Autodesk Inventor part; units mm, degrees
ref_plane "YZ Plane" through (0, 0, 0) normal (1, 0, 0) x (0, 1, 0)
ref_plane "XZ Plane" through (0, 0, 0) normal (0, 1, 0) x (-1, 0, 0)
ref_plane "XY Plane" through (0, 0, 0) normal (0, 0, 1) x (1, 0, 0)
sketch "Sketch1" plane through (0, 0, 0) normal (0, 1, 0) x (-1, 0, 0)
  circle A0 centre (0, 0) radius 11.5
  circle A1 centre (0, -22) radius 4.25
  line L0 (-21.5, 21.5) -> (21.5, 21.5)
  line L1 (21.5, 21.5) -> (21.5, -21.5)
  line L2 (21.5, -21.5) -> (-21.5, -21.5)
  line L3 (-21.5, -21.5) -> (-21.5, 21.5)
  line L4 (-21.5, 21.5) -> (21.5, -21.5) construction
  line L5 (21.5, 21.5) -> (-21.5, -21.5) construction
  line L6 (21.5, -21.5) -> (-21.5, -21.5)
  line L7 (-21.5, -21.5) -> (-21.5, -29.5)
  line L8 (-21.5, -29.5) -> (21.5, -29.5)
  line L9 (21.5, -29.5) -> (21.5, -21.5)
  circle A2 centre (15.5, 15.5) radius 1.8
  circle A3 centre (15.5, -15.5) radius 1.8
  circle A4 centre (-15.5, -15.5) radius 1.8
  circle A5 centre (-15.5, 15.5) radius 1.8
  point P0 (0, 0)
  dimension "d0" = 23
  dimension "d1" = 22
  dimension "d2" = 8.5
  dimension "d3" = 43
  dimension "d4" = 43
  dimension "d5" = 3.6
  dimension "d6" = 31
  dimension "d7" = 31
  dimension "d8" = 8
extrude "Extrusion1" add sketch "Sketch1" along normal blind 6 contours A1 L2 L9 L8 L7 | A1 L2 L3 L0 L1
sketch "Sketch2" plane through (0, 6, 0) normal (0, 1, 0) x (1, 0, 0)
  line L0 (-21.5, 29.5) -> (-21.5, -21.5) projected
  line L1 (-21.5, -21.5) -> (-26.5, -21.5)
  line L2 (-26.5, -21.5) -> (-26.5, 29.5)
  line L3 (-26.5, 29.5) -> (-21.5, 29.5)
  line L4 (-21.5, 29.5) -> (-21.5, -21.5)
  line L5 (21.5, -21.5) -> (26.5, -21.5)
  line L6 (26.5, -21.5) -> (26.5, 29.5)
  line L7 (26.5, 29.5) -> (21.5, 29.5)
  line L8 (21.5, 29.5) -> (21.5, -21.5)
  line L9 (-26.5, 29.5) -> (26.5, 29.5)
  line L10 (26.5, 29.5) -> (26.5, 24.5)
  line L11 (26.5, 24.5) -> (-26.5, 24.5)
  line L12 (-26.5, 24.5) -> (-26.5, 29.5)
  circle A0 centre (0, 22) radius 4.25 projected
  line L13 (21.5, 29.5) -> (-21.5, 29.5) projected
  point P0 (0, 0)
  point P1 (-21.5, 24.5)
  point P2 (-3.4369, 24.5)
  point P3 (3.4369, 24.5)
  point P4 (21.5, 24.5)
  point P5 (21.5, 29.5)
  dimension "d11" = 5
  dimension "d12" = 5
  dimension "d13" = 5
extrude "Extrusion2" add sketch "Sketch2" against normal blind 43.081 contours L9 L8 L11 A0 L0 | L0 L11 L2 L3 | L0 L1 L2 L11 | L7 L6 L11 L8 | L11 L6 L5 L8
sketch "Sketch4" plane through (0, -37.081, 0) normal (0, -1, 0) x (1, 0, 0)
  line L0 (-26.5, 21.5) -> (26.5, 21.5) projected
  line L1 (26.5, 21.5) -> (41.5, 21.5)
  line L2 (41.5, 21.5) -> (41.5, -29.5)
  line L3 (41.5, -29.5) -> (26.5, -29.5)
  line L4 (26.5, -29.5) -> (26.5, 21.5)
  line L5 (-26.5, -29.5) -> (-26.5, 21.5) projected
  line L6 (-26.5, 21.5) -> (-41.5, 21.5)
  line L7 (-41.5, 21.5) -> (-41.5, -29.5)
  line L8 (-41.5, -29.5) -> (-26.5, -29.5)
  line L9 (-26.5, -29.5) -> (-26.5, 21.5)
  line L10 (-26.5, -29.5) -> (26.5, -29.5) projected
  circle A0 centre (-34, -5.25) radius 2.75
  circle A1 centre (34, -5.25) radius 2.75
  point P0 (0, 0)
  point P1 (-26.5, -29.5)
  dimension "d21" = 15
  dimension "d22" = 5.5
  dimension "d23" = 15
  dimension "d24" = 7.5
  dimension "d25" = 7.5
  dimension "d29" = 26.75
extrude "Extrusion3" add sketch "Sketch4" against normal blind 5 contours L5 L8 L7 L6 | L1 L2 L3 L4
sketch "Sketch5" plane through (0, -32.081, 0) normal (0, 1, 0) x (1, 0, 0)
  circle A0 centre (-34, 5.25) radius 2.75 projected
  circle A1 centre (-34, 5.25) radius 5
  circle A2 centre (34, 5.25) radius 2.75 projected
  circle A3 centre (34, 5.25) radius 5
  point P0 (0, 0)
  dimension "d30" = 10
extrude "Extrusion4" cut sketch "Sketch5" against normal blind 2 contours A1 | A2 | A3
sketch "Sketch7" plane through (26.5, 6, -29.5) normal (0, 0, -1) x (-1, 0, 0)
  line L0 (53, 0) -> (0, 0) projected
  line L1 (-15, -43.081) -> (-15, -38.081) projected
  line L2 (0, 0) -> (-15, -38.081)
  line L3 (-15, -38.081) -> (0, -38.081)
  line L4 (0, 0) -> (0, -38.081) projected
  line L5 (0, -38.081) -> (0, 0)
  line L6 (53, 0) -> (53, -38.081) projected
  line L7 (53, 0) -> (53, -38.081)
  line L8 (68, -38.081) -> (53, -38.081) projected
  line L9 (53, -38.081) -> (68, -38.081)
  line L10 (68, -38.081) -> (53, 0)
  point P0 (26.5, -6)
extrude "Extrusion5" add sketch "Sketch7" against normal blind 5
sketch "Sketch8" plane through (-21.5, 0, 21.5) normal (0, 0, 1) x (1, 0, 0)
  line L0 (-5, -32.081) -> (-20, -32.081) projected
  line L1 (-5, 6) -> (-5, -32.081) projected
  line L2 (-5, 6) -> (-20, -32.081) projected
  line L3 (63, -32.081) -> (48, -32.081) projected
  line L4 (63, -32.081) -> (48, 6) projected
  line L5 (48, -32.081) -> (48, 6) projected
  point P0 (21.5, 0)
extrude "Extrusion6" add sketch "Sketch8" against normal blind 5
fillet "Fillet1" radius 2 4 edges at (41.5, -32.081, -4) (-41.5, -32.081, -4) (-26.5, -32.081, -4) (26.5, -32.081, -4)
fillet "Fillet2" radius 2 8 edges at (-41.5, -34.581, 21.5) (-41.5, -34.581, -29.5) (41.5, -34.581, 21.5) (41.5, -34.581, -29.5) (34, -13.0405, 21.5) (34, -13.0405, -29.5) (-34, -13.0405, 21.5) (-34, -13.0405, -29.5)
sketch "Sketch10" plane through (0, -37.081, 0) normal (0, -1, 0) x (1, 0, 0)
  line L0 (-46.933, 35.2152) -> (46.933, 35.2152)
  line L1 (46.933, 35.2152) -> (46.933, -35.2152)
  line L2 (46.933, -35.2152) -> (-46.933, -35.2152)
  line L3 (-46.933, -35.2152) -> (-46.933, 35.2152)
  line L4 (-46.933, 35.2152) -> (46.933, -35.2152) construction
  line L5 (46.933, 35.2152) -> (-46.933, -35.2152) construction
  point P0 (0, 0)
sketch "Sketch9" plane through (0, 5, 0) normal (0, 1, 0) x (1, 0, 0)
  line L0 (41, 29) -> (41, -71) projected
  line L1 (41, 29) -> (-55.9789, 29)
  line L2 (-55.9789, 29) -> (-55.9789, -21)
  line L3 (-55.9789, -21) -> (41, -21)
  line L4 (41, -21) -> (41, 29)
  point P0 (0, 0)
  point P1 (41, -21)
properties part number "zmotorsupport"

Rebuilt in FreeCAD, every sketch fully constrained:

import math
import FreeCAD as App
import Part
import Sketcher

V = App.Vector
Q = App.Units.Quantity


def edges_at(feature, points):
    """Names of the edges that pass closest to the given points."""
    edges = feature.Shape.Edges
    near = lambda p: min(range(len(edges)), key=lambda i: edges[i].distToShape(Part.Vertex(*p))[0])
    return sorted({f"Edge{near(p) + 1}" for p in points})


def add_polygon(sketch, points):
    """Adds a closed chain of lines whose ends are joined by coincident constraints."""
    first, n = sketch.GeometryCount, len(points)
    for a, b in zip(points, points[1:] + points[:1]):
        sketch.addGeometry(Part.LineSegment(App.Vector(*a, 0), App.Vector(*b, 0)), False)
    for i in range(n):
        sketch.addConstraint(Sketcher.Constraint("Coincident", first + i, 2, first + (i + 1) % n, 1))

doc = App.newDocument("Part")
params = doc.addObject("Spreadsheet::Sheet", "Params")
for row, (alias, value) in enumerate([
    ("sketch1_diameter", "23 mm"),
    ("sketch1_diameter2", "8.5 mm"),
    ("sketch1_diameter3", "3.6 mm"),
    ("sketch1_width", "43 mm"),
    ("sketch1_height", "51 mm"),
    ("pad1_length", "6 mm"),
    ("sketch2_width", "5 mm"),
    ("sketch2_width2", "53 mm"),
    ("sketch2_height", "51 mm"),
    ("sketch2_radius", "4.25 mm"),
    ("pad2_length", "43.081 mm"),
    ("sketch3_diameter", "5.5 mm"),
    ("sketch3_width", "15 mm"),
    ("sketch3_height", "51 mm"),
    ("pad3_length", "5 mm"),
    ("sketch4_diameter", "10 mm"),
    ("sketch4_diameter2", "5.5 mm"),
    ("pocket1_length", "2 mm"),
    ("sketch5_width", "15 mm"),
    ("pad4_length", "5 mm"),
    ("sketch6_width", "15 mm"),
    ("pad5_length", "5 mm"),
    ("fillet_radius", "2 mm"),
    ("fillet2_radius", "2 mm"),
], start=1):
    params.set(f"A{row}", alias)
    params.set(f"B{row}", "=" + value)
    params.setAlias(f"B{row}", alias)

body = doc.addObject("PartDesign::Body", "Body")

# Sketch on XZ plane
sketch1 = body.newObject("Sketcher::SketchObject", "Sketch")
sketch1.AttachmentSupport = (doc.getObject("XZ_Plane"), [""])
sketch1.MapMode = "FlatFace"
add_polygon(sketch1, [(-21.5, -29.5), (-21.5, 21.5), (21.5, 21.5), (21.5, -29.5)])  # lines 0-3
sketch1.addGeometry(Part.Circle(V(0, -22, 0), V(0, 0, 1), 4.2), False)  # 4
sketch1.addGeometry(Part.Circle(V(0, 0, 0), V(0, 0, 1), 11.5), False)  # 5
sketch1.addGeometry(Part.Circle(V(-15.5, 15.5, 0), V(0, 0, 1), 1.8), False)  # 6
sketch1.addGeometry(Part.Circle(V(15.5, -15.5, 0), V(0, 0, 1), 1.8), False)  # 7
sketch1.addGeometry(Part.Circle(V(-15.5, -15.5, 0), V(0, 0, 1), 1.8), False)  # 8
sketch1.addGeometry(Part.Circle(V(15.5, 15.5, 0), V(0, 0, 1), 1.8), False)  # 9
sketch1.addConstraint(Sketcher.Constraint("Vertical", 0))
sketch1.addConstraint(Sketcher.Constraint("Horizontal", 1))
sketch1.addConstraint(Sketcher.Constraint("Vertical", 2))
sketch1.addConstraint(Sketcher.Constraint("Horizontal", 3))
sketch1.addConstraint(Sketcher.Constraint("Coincident", 5, 3, -1, 1))
sketch1.addConstraint(Sketcher.Constraint("Equal", 6, 7))
sketch1.addConstraint(Sketcher.Constraint("Equal", 7, 8))
sketch1.addConstraint(Sketcher.Constraint("Equal", 8, 9))
sketch1.addConstraint(Sketcher.Constraint("Symmetric", 6, 3, 7, 3, -1, 1))
sketch1.addConstraint(Sketcher.Constraint("Symmetric", 8, 3, 9, 3, -1, 1))
sketch1.addConstraint(Sketcher.Constraint("Symmetric", 7, 3, 8, 3, -2))
sketch1.addConstraint(Sketcher.Constraint("PointOnObject", 4, 3, -2))
sketch1.addConstraint(Sketcher.Constraint("Diameter", 5, 23.0))
sketch1.addConstraint(Sketcher.Constraint("Diameter", 4, 8.5))
sketch1.addConstraint(Sketcher.Constraint("Diameter", 6, 3.6))
sketch1.addConstraint(Sketcher.Constraint("DistanceX", 1, 1, 1, 2, 43.0))
sketch1.addConstraint(Sketcher.Constraint("DistanceY", 4, 3, -1, 1, 22.0))
sketch1.addConstraint(Sketcher.Constraint("DistanceX", 6, 3, 7, 3, 31.0))
sketch1.addConstraint(Sketcher.Constraint("DistanceY", 7, 3, 6, 3, 31.0))
sketch1.addConstraint(Sketcher.Constraint("DistanceY", 0, 1, 0, 2, 51.0))
sketch1.addConstraint(Sketcher.Constraint("DistanceX", 0, 2, 6, 3, 6.0))
sketch1.addConstraint(Sketcher.Constraint("DistanceY", 6, 3, 0, 2, 6.0))
sketch1.setExpression("Constraints[16]", "Params.sketch1_diameter")
sketch1.setExpression("Constraints[17]", "Params.sketch1_diameter2")
sketch1.setExpression("Constraints[18]", "Params.sketch1_diameter3")
sketch1.setExpression("Constraints[19]", "Params.sketch1_width")
sketch1.setExpression("Constraints[23]", "Params.sketch1_height")
pad1 = body.newObject("PartDesign::Pad", "Pad")
pad1.Profile = sketch1
pad1.setExpression("Length", "Params.pad1_length")
pad1.Reversed = True

# Sketch on XZ plane
sketch2 = body.newObject("Sketcher::SketchObject", "Sketch001")
sketch2.AttachmentSupport = (doc.getObject("XZ_Plane"), [""])
sketch2.MapMode = "FlatFace"
sketch2.AttachmentOffset = App.Placement(V(0, 0, -6), App.Rotation())
sketch2.addGeometry(Part.LineSegment(V(-26.5, -29.5, 0), V(-26.5, 21.5, 0)), False)
sketch2.addGeometry(Part.LineSegment(V(-26.5, 21.5, 0), V(-21.5, 21.5, 0)), False)
sketch2.addGeometry(Part.LineSegment(V(-21.5, 21.5, 0), V(-21.5, -24.5, 0)), False)
sketch2.addGeometry(Part.LineSegment(V(-21.5, -24.5, 0), V(-3.4, -24.5, 0)), False)
sketch2.addGeometry(Part.ArcOfCircle(Part.Circle(V(0, -22, 0), V(0, 0, 1), 4.2), math.radians(-144), math.radians(-36)), False)
sketch2.addGeometry(Part.LineSegment(V(3.4, -24.5, 0), V(21.5, -24.5, 0)), False)
sketch2.addGeometry(Part.LineSegment(V(21.5, -24.5, 0), V(21.5, 21.5, 0)), False)
sketch2.addGeometry(Part.LineSegment(V(21.5, 21.5, 0), V(26.5, 21.5, 0)), False)
sketch2.addGeometry(Part.LineSegment(V(26.5, 21.5, 0), V(26.5, -29.5, 0)), False)
sketch2.addGeometry(Part.LineSegment(V(26.5, -29.5, 0), V(-26.5, -29.5, 0)), False)
sketch2.addConstraint(Sketcher.Constraint("Coincident", 0, 2, 1, 1))
sketch2.addConstraint(Sketcher.Constraint("Coincident", 1, 2, 2, 1))
sketch2.addConstraint(Sketcher.Constraint("Coincident", 2, 2, 3, 1))
sketch2.addConstraint(Sketcher.Constraint("Coincident", 3, 2, 4, 1))
sketch2.addConstraint(Sketcher.Constraint("Coincident", 4, 2, 5, 1))
sketch2.addConstraint(Sketcher.Constraint("Coincident", 5, 2, 6, 1))
sketch2.addConstraint(Sketcher.Constraint("Coincident", 6, 2, 7, 1))
sketch2.addConstraint(Sketcher.Constraint("Coincident", 7, 2, 8, 1))
sketch2.addConstraint(Sketcher.Constraint("Coincident", 8, 2, 9, 1))
sketch2.addConstraint(Sketcher.Constraint("Coincident", 9, 2, 0, 1))
sketch2.addConstraint(Sketcher.Constraint("Vertical", 0))
sketch2.addConstraint(Sketcher.Constraint("Horizontal", 1))
sketch2.addConstraint(Sketcher.Constraint("Vertical", 2))
sketch2.addConstraint(Sketcher.Constraint("Horizontal", 3))
sketch2.addConstraint(Sketcher.Constraint("Horizontal", 5))
sketch2.addConstraint(Sketcher.Constraint("Vertical", 6))
sketch2.addConstraint(Sketcher.Constraint("Horizontal", 7))
sketch2.addConstraint(Sketcher.Constraint("Vertical", 8))
sketch2.addConstraint(Sketcher.Constraint("Horizontal", 9))
sketch2.addConstraint(Sketcher.Constraint("Symmetric", 3, 2, 4, 2, -2))
sketch2.addConstraint(Sketcher.Constraint("Symmetric", 1, 2, 6, 2, -2))
sketch2.addConstraint(Sketcher.Constraint("Equal", 1, 7))
sketch2.addConstraint(Sketcher.Constraint("DistanceX", 1, 1, 1, 2, 5.0))
sketch2.addConstraint(Sketcher.Constraint("DistanceY", 8, 2, 5, 2, 5.0))
sketch2.addConstraint(Sketcher.Constraint("DistanceX", 9, 2, 9, 1, 53.0))
sketch2.addConstraint(Sketcher.Constraint("DistanceY", 0, 1, 0, 2, 51.0))
sketch2.addConstraint(Sketcher.Constraint("Radius", 4, 4.25))
sketch2.addConstraint(Sketcher.Constraint("DistanceY", 4, 3, -1, 1, 22.0))
sketch2.addConstraint(Sketcher.Constraint("DistanceY", -1, 1, 0, 2, 21.5))
sketch2.setExpression("Constraints[22]", "Params.sketch2_width")
sketch2.setExpression("Constraints[24]", "Params.sketch2_width2")
sketch2.setExpression("Constraints[25]", "Params.sketch2_height")
sketch2.setExpression("Constraints[26]", "Params.sketch2_radius")
pad2 = body.newObject("PartDesign::Pad", "Pad001")
pad2.Profile = sketch2
pad2.setExpression("Length", "Params.pad2_length")

# Sketch on XZ plane
sketch3 = body.newObject("Sketcher::SketchObject", "Sketch002")
sketch3.AttachmentSupport = (doc.getObject("XZ_Plane"), [""])
sketch3.MapMode = "FlatFace"
sketch3.AttachmentOffset = App.Placement(V(0, 0, 37.081), App.Rotation())
add_polygon(sketch3, [(-26.5, -29.5), (-26.5, 21.5), (-41.5, 21.5), (-41.5, -29.5)])  # lines 0-3
sketch3.addGeometry(Part.Circle(V(-34, -5.2, 0), V(0, 0, 1), 2.8), False)  # 4
add_polygon(sketch3, [(41.5, 21.5), (26.5, 21.5), (26.5, -29.5), (41.5, -29.5)])  # lines 5-8
sketch3.addGeometry(Part.Circle(V(34, -5.2, 0), V(0, 0, 1), 2.8), False)  # 9
sketch3.addConstraint(Sketcher.Constraint("Vertical", 0))
sketch3.addConstraint(Sketcher.Constraint("Horizontal", 1))
sketch3.addConstraint(Sketcher.Constraint("Vertical", 2))
sketch3.addConstraint(Sketcher.Constraint("Horizontal", 3))
sketch3.addConstraint(Sketcher.Constraint("Horizontal", 5))
sketch3.addConstraint(Sketcher.Constraint("Vertical", 6))
sketch3.addConstraint(Sketcher.Constraint("Horizontal", 7))
sketch3.addConstraint(Sketcher.Constraint("Vertical", 8))
sketch3.addConstraint(Sketcher.Constraint("Equal", 4, 9))
sketch3.addConstraint(Sketcher.Constraint("Symmetric", 4, 3, 9, 3, -2))
sketch3.addConstraint(Sketcher.Constraint("Symmetric", 0, 2, 5, 2, -2))
sketch3.addConstraint(Sketcher.Constraint("Symmetric", 2, 2, 7, 2, -2))
sketch3.addConstraint(Sketcher.Constraint("Diameter", 4, 5.5))
sketch3.addConstraint(Sketcher.Constraint("DistanceX", 1, 2, 1, 1, 15.0))
sketch3.addConstraint(Sketcher.Constraint("DistanceX", 4, 3, 0, 2, 7.5))
sketch3.addConstraint(Sketcher.Constraint("DistanceY", 0, 1, 0, 2, 51.0))
sketch3.addConstraint(Sketcher.Constraint("DistanceY", 4, 3, 0, 2, 26.75))
sketch3.addConstraint(Sketcher.Constraint("DistanceX", 4, 3, -1, 1, 34.0))
sketch3.addConstraint(Sketcher.Constraint("DistanceY", -1, 1, 0, 2, 21.5))
sketch3.setExpression("Constraints[20]", "Params.sketch3_diameter")
sketch3.setExpression("Constraints[21]", "Params.sketch3_width")
sketch3.setExpression("Constraints[23]", "Params.sketch3_height")
pad3 = body.newObject("PartDesign::Pad", "Pad002")
pad3.Profile = sketch3
pad3.setExpression("Length", "Params.pad3_length")
pad3.Reversed = True

# Sketch on XZ plane
sketch4 = body.newObject("Sketcher::SketchObject", "Sketch003")
sketch4.AttachmentSupport = (doc.getObject("XZ_Plane"), [""])
sketch4.MapMode = "FlatFace"
sketch4.AttachmentOffset = App.Placement(V(0, 0, 32.081), App.Rotation())
sketch4.addGeometry(Part.Circle(V(-34, -5.2, 0), V(0, 0, 1), 5), False)
sketch4.addGeometry(Part.Circle(V(-34, -5.2, 0), V(0, 0, 1), 2.8), False)
sketch4.addGeometry(Part.Circle(V(34, -5.2, 0), V(0, 0, 1), 5), False)
sketch4.addConstraint(Sketcher.Constraint("Coincident", 1, 3, 0, 3))
sketch4.addConstraint(Sketcher.Constraint("Equal", 0, 2))
sketch4.addConstraint(Sketcher.Constraint("Symmetric", 0, 3, 2, 3, -2))
sketch4.addConstraint(Sketcher.Constraint("Diameter", 0, 10.0))
sketch4.addConstraint(Sketcher.Constraint("Diameter", 1, 5.5))
sketch4.addConstraint(Sketcher.Constraint("DistanceX", 0, 3, -1, 1, 34.0))
sketch4.addConstraint(Sketcher.Constraint("DistanceY", 0, 3, -1, 1, 5.25))
sketch4.setExpression("Constraints[3]", "Params.sketch4_diameter")
sketch4.setExpression("Constraints[4]", "Params.sketch4_diameter2")
pocket1 = body.newObject("PartDesign::Pocket", "Pocket")
pocket1.Profile = sketch4
pocket1.setExpression("Length", "Params.pocket1_length")
pocket1.Reversed = True

# Sketch on XY plane
sketch5 = body.newObject("Sketcher::SketchObject", "Sketch004")
sketch5.AttachmentSupport = (doc.getObject("XY_Plane"), [""])
sketch5.MapMode = "FlatFace"
sketch5.AttachmentOffset = App.Placement(V(0, 0, -29.5), App.Rotation())
add_polygon(sketch5, [(26, -32), (26, 6), (42, -32)])  # lines 0-2
add_polygon(sketch5, [(-42, -32), (-26, 6), (-26, -32)])  # lines 3-5
sketch5.addConstraint(Sketcher.Constraint("Vertical", 0))
sketch5.addConstraint(Sketcher.Constraint("Horizontal", 2))
sketch5.addConstraint(Sketcher.Constraint("Vertical", 4))
sketch5.addConstraint(Sketcher.Constraint("Horizontal", 5))
sketch5.addConstraint(Sketcher.Constraint("Symmetric", 0, 2, 3, 2, -2))
sketch5.addConstraint(Sketcher.Constraint("Symmetric", 1, 2, 5, 2, -2))
sketch5.addConstraint(Sketcher.Constraint("DistanceX", 2, 2, 2, 1, 15.0))
sketch5.addConstraint(Sketcher.Constraint("DistanceY", -1, 1, 0, 2, 6.0))
sketch5.addConstraint(Sketcher.Constraint("Angle", 1, Q("-68.5007 deg")))
sketch5.addConstraint(Sketcher.Constraint("DistanceX", 3, 2, 0, 2, 53.0))
sketch5.setExpression("Constraints[12]", "Params.sketch5_width")
pad4 = body.newObject("PartDesign::Pad", "Pad003")
pad4.Profile = sketch5
pad4.setExpression("Length", "Params.pad4_length")

# Sketch on XY plane
sketch6 = body.newObject("Sketcher::SketchObject", "Sketch005")
sketch6.AttachmentSupport = (doc.getObject("XY_Plane"), [""])
sketch6.MapMode = "FlatFace"
sketch6.AttachmentOffset = App.Placement(V(0, 0, 21.5), App.Rotation())
add_polygon(sketch6, [(-42, -32), (-26, -32), (-26, 6)])  # lines 0-2
add_polygon(sketch6, [(26, -32), (42, -32), (26, 6)])  # lines 3-5
sketch6.addConstraint(Sketcher.Constraint("Horizontal", 0))
sketch6.addConstraint(Sketcher.Constraint("Vertical", 1))
sketch6.addConstraint(Sketcher.Constraint("Horizontal", 3))
sketch6.addConstraint(Sketcher.Constraint("Vertical", 5))
sketch6.addConstraint(Sketcher.Constraint("Symmetric", 2, 2, 3, 2, -2))
sketch6.addConstraint(Sketcher.Constraint("Symmetric", 1, 2, 4, 2, -2))
sketch6.addConstraint(Sketcher.Constraint("DistanceX", 0, 1, 0, 2, 15.0))
sketch6.addConstraint(Sketcher.Constraint("DistanceY", -1, 1, 1, 2, 6.0))
sketch6.addConstraint(Sketcher.Constraint("Angle", 2, Q("-111.4993 deg")))
sketch6.addConstraint(Sketcher.Constraint("DistanceX", 0, 2, 3, 2, 68.0))
sketch6.setExpression("Constraints[12]", "Params.sketch6_width")
pad5 = body.newObject("PartDesign::Pad", "Pad004")
pad5.Profile = sketch6
pad5.setExpression("Length", "Params.pad5_length")
pad5.Reversed = True
doc.recompute()

fillet = body.newObject("PartDesign::Fillet", "Fillet")
fillet.Base = (pad5, edges_at(pad5, [
    (41.5, -32.081, -4),
    (-41.5, -32.081, -4),
    (-26.5, -32.081, -4),
    (26.5, -32.081, -4),
]))
fillet.setExpression("Radius", "Params.fillet_radius")
doc.recompute()

fillet2 = body.newObject("PartDesign::Fillet", "Fillet001")
fillet2.Base = (fillet, edges_at(fillet, [
    (-41.5, -34.581, 21.5),
    (-41.5, -34.581, -29.5),
    (41.5, -34.581, 21.5),
    (41.5, -34.581, -29.5),
    (34, -13.04, 21.5),
    (34, -13.04, -29.5),
    (-34, -13.04, 21.5),
    (-34, -13.04, -29.5),
]))
fillet2.setExpression("Radius", "Params.fillet2_radius")

doc.recompute()
